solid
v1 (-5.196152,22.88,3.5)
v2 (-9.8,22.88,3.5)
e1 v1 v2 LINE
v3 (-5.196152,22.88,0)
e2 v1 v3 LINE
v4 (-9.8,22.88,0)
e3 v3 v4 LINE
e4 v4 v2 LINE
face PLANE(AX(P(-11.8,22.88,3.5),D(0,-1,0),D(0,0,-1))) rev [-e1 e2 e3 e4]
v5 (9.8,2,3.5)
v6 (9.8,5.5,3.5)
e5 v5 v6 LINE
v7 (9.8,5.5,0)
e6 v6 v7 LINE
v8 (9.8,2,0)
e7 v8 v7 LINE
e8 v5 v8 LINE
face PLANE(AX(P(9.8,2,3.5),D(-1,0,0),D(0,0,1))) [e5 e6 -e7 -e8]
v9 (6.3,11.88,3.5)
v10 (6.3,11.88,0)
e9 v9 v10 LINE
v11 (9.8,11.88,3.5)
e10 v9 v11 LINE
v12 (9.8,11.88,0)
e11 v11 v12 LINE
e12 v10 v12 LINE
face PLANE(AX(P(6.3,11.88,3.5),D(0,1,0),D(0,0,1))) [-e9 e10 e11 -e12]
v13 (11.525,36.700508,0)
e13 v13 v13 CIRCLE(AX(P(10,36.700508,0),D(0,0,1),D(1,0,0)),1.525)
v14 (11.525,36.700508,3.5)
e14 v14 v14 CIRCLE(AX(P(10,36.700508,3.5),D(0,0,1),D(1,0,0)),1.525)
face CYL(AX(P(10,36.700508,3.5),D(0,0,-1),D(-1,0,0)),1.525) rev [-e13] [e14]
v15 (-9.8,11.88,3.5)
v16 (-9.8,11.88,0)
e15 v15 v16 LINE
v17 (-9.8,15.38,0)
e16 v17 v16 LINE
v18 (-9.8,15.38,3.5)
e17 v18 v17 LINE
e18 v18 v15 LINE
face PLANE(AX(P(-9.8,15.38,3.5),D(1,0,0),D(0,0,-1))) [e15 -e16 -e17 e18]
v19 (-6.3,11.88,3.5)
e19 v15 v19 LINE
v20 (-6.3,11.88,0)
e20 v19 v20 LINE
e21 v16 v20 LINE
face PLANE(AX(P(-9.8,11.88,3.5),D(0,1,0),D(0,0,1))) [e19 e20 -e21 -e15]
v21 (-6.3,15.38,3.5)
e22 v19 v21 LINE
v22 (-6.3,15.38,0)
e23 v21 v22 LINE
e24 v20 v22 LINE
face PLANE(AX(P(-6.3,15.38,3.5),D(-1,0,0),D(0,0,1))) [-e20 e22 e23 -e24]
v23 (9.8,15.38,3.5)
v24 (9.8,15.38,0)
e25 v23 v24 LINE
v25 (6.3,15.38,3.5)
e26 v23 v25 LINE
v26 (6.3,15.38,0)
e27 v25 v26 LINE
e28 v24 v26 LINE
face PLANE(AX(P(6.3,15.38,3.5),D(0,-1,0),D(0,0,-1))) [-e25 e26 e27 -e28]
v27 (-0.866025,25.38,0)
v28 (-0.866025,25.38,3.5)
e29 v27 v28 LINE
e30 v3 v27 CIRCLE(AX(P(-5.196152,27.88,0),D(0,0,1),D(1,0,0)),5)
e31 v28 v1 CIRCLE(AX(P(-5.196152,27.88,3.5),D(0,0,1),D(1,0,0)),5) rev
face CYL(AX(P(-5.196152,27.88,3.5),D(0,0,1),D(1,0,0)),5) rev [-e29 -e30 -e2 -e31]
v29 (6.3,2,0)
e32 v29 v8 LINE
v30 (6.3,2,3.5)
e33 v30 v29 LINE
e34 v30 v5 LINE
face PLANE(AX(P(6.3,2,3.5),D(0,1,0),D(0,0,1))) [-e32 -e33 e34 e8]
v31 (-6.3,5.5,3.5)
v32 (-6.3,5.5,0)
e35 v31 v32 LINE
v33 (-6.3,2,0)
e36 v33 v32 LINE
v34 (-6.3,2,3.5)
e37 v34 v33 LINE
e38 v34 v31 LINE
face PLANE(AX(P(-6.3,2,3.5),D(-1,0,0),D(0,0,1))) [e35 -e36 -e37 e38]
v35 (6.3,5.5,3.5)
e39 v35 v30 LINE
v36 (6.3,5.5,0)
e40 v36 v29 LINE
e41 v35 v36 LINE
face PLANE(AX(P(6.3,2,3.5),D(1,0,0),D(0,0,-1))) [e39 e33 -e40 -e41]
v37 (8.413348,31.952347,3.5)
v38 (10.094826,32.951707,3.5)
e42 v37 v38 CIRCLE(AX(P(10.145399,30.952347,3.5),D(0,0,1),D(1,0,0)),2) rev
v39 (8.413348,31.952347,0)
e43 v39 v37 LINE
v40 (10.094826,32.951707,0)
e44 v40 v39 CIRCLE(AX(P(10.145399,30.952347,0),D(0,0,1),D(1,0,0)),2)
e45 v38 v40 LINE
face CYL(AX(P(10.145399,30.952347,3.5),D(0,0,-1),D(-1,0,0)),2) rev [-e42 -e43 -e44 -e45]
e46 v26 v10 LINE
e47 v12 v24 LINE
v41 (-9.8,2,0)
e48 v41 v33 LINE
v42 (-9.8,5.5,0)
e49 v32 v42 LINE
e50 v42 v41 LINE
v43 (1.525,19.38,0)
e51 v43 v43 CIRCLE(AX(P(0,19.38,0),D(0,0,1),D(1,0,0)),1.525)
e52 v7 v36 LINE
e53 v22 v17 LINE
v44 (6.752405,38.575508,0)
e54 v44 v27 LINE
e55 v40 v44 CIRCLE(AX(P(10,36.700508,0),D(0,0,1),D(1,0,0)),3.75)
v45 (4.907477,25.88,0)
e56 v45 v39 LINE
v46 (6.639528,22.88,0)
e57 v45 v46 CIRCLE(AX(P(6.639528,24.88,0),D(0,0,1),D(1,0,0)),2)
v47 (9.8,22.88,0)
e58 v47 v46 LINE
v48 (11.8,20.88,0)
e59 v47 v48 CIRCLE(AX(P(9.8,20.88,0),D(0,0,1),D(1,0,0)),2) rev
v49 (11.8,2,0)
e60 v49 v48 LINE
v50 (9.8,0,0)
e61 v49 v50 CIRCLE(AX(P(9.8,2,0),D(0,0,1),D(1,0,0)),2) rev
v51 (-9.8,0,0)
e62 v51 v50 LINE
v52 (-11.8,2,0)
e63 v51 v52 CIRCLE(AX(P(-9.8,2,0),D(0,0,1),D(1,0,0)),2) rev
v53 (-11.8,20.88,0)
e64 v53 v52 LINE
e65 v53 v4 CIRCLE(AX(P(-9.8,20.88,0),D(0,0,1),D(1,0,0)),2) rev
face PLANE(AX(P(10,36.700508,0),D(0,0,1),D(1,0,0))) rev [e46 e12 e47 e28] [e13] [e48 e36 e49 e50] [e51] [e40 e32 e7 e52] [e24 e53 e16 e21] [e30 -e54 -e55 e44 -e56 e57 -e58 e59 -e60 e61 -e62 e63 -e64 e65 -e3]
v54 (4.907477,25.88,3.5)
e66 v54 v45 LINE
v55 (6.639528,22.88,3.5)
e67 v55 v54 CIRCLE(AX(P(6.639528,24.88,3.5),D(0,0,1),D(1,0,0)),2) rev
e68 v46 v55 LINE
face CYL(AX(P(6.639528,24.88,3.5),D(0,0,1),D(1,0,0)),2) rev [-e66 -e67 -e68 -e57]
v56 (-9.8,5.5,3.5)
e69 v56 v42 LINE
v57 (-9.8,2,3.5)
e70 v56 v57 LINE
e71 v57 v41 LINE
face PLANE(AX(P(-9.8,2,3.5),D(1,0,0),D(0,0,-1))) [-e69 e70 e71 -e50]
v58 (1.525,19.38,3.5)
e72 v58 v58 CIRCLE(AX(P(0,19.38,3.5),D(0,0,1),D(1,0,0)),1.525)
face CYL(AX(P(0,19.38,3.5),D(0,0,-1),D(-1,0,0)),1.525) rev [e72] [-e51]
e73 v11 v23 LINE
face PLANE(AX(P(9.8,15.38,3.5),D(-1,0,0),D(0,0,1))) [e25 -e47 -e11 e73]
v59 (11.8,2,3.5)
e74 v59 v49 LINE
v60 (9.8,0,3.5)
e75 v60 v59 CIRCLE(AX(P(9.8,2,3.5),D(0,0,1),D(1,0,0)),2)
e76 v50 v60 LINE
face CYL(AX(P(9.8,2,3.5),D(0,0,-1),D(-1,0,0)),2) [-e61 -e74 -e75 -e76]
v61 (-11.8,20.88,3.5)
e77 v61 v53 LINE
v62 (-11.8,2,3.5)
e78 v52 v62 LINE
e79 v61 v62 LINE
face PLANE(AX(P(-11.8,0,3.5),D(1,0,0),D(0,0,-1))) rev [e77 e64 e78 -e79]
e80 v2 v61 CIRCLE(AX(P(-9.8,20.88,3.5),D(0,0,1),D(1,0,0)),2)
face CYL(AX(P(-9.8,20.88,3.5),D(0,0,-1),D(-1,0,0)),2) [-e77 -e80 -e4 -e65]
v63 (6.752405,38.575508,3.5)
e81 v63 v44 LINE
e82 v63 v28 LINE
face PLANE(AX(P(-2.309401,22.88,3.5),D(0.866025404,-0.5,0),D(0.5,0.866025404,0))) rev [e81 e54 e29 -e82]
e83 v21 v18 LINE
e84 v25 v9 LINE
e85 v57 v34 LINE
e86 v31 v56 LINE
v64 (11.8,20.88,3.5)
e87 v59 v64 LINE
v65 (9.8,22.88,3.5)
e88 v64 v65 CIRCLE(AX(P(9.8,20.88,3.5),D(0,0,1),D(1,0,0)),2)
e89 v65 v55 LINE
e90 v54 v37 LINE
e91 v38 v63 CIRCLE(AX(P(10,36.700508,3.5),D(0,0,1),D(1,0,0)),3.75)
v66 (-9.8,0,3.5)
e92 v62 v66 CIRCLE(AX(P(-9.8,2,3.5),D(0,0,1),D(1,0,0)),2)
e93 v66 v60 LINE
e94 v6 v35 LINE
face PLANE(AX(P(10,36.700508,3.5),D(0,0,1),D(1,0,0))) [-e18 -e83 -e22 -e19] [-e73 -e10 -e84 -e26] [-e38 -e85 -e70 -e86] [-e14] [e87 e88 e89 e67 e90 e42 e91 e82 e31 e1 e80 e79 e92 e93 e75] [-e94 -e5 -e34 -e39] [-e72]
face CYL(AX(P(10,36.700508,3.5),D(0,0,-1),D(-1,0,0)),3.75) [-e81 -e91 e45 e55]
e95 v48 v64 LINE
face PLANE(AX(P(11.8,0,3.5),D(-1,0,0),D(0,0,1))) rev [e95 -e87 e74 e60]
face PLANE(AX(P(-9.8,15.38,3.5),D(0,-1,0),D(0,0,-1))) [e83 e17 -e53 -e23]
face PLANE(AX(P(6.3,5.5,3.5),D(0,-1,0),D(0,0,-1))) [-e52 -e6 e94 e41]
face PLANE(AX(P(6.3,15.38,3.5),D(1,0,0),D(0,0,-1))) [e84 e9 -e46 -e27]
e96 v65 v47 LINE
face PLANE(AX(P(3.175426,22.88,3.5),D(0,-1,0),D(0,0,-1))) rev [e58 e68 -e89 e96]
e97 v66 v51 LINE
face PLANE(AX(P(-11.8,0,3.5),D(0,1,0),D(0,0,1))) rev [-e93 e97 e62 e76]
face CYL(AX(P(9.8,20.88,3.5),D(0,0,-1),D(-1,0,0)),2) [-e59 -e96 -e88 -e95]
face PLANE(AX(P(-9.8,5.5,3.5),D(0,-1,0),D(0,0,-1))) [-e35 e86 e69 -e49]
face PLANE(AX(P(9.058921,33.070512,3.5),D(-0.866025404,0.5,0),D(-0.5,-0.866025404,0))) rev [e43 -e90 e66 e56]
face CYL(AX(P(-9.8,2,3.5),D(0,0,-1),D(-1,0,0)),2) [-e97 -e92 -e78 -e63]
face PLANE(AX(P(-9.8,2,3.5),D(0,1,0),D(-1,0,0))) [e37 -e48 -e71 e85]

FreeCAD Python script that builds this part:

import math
import FreeCAD as App
import Part
import Sketcher

V = App.Vector
Q = App.Units.Quantity


def edges_at(feature, points):
    """Names of the edges that pass closest to the given points."""
    edges = feature.Shape.Edges
    near = lambda p: min(range(len(edges)), key=lambda i: edges[i].distToShape(Part.Vertex(*p))[0])
    return sorted({f"Edge{near(p) + 1}" for p in points})


def add_polygon(sketch, points):
    """Adds a closed chain of lines whose ends are joined by coincident constraints."""
    first, n = sketch.GeometryCount, len(points)
    for a, b in zip(points, points[1:] + points[:1]):
        sketch.addGeometry(Part.LineSegment(App.Vector(*a, 0), App.Vector(*b, 0)), False)
    for i in range(n):
        sketch.addConstraint(Sketcher.Constraint("Coincident", first + i, 2, first + (i + 1) % n, 1))

doc = App.newDocument("Part")
params = doc.addObject("Spreadsheet::Sheet", "Params")
for row, (alias, value) in enumerate([
    ("sketch1_diameter", "3.05 mm"),
    ("sketch1_radius", "3.75 mm"),
    ("sketch1_width", "23.6 mm"),
    ("sketch1_width2", "3.5 mm"),
    ("sketch1_height", "22.88 mm"),
    ("pad1_length", "3.5 mm"),
    ("fillet_radius", "2 mm"),
    ("fillet2_radius", "2 mm"),
    ("fillet3_radius", "5 mm"),
], start=1):
    params.set(f"A{row}", alias)
    params.set(f"B{row}", "=" + value)
    params.setAlias(f"B{row}", alias)

body = doc.addObject("PartDesign::Body", "Body")

# Sketch on XY plane
sketch1 = doc.addObject("Sketcher::SketchObject", "Sketch")
body.addObject(sketch1)
sketch1.AttachmentSupport = (doc.XY_Plane, [""])
sketch1.MapMode = "FlatFace"
sketch1.addGeometry(Part.LineSegment(V(-11.8, 0, 0), V(11.8, 0, 0)), False)  # 0
sketch1.addGeometry(Part.LineSegment(V(11.8, 0, 0), V(11.8, 22.9, 0)), False)  # 1
sketch1.addGeometry(Part.LineSegment(V(11.8, 22.9, 0), V(3.2, 22.9, 0)), False)  # 2
sketch1.addGeometry(Part.LineSegment(V(3.2, 22.9, 0), V(9.1, 33.1, 0)), False)  # 3
sketch1.addGeometry(Part.ArcOfCircle(Part.Circle(V(10, 36.7, 0), V(0, 0, 1), 3.8), math.radians(-105), math.radians(150)), False)  # 4
sketch1.addGeometry(Part.LineSegment(V(6.8, 38.6, 0), V(-2.3, 22.9, 0)), False)  # 5
sketch1.addGeometry(Part.LineSegment(V(-2.3, 22.9, 0), V(-11.8, 22.9, 0)), False)  # 6
sketch1.addGeometry(Part.LineSegment(V(-11.8, 22.9, 0), V(-11.8, 0, 0)), False)  # 7
add_polygon(sketch1, [(-6.3, 2), (-9.8, 2), (-9.8, 5.5), (-6.3, 5.5)])  # lines 8-11
add_polygon(sketch1, [(-6.3, 11.9), (-9.8, 11.9), (-9.8, 15.4), (-6.3, 15.4)])  # lines 12-15
sketch1.addGeometry(Part.Circle(V(0, 19.4, 0), V(0, 0, 1), 1.5), False)  # 16
add_polygon(sketch1, [(9.8, 2), (6.3, 2), (6.3, 5.5), (9.8, 5.5)])  # lines 17-20
add_polygon(sketch1, [(9.8, 11.9), (6.3, 11.9), (6.3, 15.4), (9.8, 15.4)])  # lines 21-24
sketch1.addGeometry(Part.Circle(V(10, 36.7, 0), V(0, 0, 1), 1.5), False)  # 25
sketch1.addConstraint(Sketcher.Constraint("Coincident", 0, 2, 1, 1))
sketch1.addConstraint(Sketcher.Constraint("Coincident", 1, 2, 2, 1))
sketch1.addConstraint(Sketcher.Constraint("Coincident", 2, 2, 3, 1))
sketch1.addConstraint(Sketcher.Constraint("Coincident", 3, 2, 4, 1))
sketch1.addConstraint(Sketcher.Constraint("Tangent", 4, 2, 5, 1))
sketch1.addConstraint(Sketcher.Constraint("Coincident", 5, 2, 6, 1))
sketch1.addConstraint(Sketcher.Constraint("Coincident", 6, 2, 7, 1))
sketch1.addConstraint(Sketcher.Constraint("Coincident", 7, 2, 0, 1))
sketch1.addConstraint(Sketcher.Constraint("Horizontal", 0))
sketch1.addConstraint(Sketcher.Constraint("Vertical", 1))
sketch1.addConstraint(Sketcher.Constraint("Horizontal", 2))
sketch1.addConstraint(Sketcher.Constraint("Horizontal", 6))
sketch1.addConstraint(Sketcher.Constraint("Vertical", 7))
sketch1.addConstraint(Sketcher.Constraint("Horizontal", 8))
sketch1.addConstraint(Sketcher.Constraint("Vertical", 9))
sketch1.addConstraint(Sketcher.Constraint("Horizontal", 10))
sketch1.addConstraint(Sketcher.Constraint("Vertical", 11))
sketch1.addConstraint(Sketcher.Constraint("Horizontal", 12))
sketch1.addConstraint(Sketcher.Constraint("Vertical", 13))
sketch1.addConstraint(Sketcher.Constraint("Horizontal", 14))
sketch1.addConstraint(Sketcher.Constraint("Vertical", 15))
sketch1.addConstraint(Sketcher.Constraint("Horizontal", 17))
sketch1.addConstraint(Sketcher.Constraint("Vertical", 18))
sketch1.addConstraint(Sketcher.Constraint("Horizontal", 19))
sketch1.addConstraint(Sketcher.Constraint("Vertical", 20))
sketch1.addConstraint(Sketcher.Constraint("Horizontal", 21))
sketch1.addConstraint(Sketcher.Constraint("Vertical", 22))
sketch1.addConstraint(Sketcher.Constraint("Horizontal", 23))
sketch1.addConstraint(Sketcher.Constraint("Vertical", 24))
sketch1.addConstraint(Sketcher.Constraint("Coincident", 25, 3, 4, 3))
sketch1.addConstraint(Sketcher.Constraint("Equal", 16, 25))
sketch1.addConstraint(Sketcher.Constraint("Symmetric", 0, 2, 7, 2, -1, 1))
sketch1.addConstraint(Sketcher.Constraint("Symmetric", 11, 2, 17, 2, -2))
sketch1.addConstraint(Sketcher.Constraint("Symmetric", 9, 2, 19, 2, -2))
sketch1.addConstraint(Sketcher.Constraint("Symmetric", 15, 2, 21, 2, -2))
sketch1.addConstraint(Sketcher.Constraint("Symmetric", 13, 2, 23, 2, -2))
sketch1.addConstraint(Sketcher.Constraint("PointOnObject", 16, 3, -2))
sketch1.addConstraint(Sketcher.Constraint("Parallel", 3, 5))
sketch1.addConstraint(Sketcher.Constraint("Horizontal", 2, 2, 5, 2))
sketch1.addConstraint(Sketcher.Constraint("Vertical", 9, 2, 12, 2))
sketch1.addConstraint(Sketcher.Constraint("Vertical", 11, 2, 14, 2))
sketch1.addConstraint(Sketcher.Constraint("Equal", 23, 9))
sketch1.addConstraint(Sketcher.Constraint("Equal", 11, 13))
sketch1.addConstraint(Sketcher.Constraint("Diameter", 16, Q("3.05 mm")))
sketch1.addConstraint(Sketcher.Constraint("Angle", 3, Q("60 deg")))
sketch1.addConstraint(Sketcher.Constraint("Radius", 4, Q("3.75 mm")))
sketch1.addConstraint(Sketcher.Constraint("DistanceX", 0, 1, 0, 2, Q("23.6 mm")))
sketch1.addConstraint(Sketcher.Constraint("DistanceX", 8, 2, 8, 1, Q("3.5 mm")))
sketch1.addConstraint(Sketcher.Constraint("DistanceX", -1, 1, 4, 3, Q("10 mm")))
sketch1.addConstraint(Sketcher.Constraint("DistanceY", -1, 1, 8, 2, Q("2 mm")))
sketch1.addConstraint(Sketcher.Constraint("DistanceX", 7, 2, 8, 2, Q("2 mm")))
sketch1.addConstraint(Sketcher.Constraint("DistanceY", 12, 2, 6, 2, Q("11 mm")))
sketch1.addConstraint(Sketcher.Constraint("DistanceY", 13, 2, 16, 3, Q("4 mm")))
sketch1.addConstraint(Sketcher.Constraint("DistanceY", 1, 1, 1, 2, Q("22.88 mm")))
sketch1.addConstraint(Sketcher.Constraint("DistanceX", 6, 2, 6, 1, Q("9.490599 mm")))
sketch1.addConstraint(Sketcher.Constraint("Distance", 3, Q("11.76699 mm")))
sketch1.setExpression("Constraints[59]", "Params.sketch1_diameter")
sketch1.setExpression("Constraints[61]", "Params.sketch1_radius")
sketch1.setExpression("Constraints[62]", "Params.sketch1_width")
sketch1.setExpression("Constraints[63]", "Params.sketch1_width2")
sketch1.setExpression("Constraints[69]", "Params.sketch1_height")
pad1 = doc.addObject("PartDesign::Pad", "Pad")
body.addObject(pad1)
pad1.Profile = sketch1
pad1.setExpression("Length", "Params.pad1_length")
doc.recompute()

fillet = doc.addObject("PartDesign::Fillet", "Fillet")
body.addObject(fillet)
fillet.Base = (pad1, edges_at(pad1, [
    (-11.8, 22.88, 1.75),
    (11.8, 22.88, 1.75),
    (11.8, 0, 1.75),
    (-11.8, 0, 1.75),
]))
fillet.setExpression("Radius", "Params.fillet_radius")
doc.recompute()

fillet2 = doc.addObject("PartDesign::Fillet", "Fillet001")
body.addObject(fillet2)
fillet2.Base = (fillet, edges_at(fillet, [(9.059, 33.071, 1.75), (3.175, 22.88, 1.75)]))
fillet2.setExpression("Radius", "Params.fillet2_radius")
doc.recompute()

fillet3 = doc.addObject("PartDesign::Fillet", "Fillet002")
body.addObject(fillet3)
fillet3.Base = (fillet2, edges_at(fillet2, [(-2.309, 22.88, 1.75)]))
fillet3.setExpression("Radius", "Params.fillet3_radius")

doc.recompute()
